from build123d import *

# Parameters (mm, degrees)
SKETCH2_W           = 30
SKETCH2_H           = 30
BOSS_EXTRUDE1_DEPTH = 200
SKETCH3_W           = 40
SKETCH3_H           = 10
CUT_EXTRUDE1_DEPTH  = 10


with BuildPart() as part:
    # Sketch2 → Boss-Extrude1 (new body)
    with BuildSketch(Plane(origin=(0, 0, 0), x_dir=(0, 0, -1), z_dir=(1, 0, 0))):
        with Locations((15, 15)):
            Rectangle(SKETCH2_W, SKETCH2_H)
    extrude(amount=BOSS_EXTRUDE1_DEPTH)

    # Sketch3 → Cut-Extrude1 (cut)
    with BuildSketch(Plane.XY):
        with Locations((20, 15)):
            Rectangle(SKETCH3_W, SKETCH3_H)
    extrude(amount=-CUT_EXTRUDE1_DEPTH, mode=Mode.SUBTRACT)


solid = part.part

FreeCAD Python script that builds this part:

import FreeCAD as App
import Part
import Sketcher
from FreeCAD import Vector

doc = App.newDocument("Part")
body = doc.addObject("PartDesign::Body", "Body")

sketch1 = body.newObject("Sketcher::SketchObject", "Sketch")
sketch1.AttachmentSupport = (doc.getObject("YZ_Plane"), [""])
sketch1.MapMode = "FlatFace"
sketch1.addGeometry([
    Part.LineSegment(Vector(30, 0, 0), Vector(0, 0, 0)),
    Part.LineSegment(Vector(0, 0, 0), Vector(0, -30, 0)),
    Part.LineSegment(Vector(0, -30, 0), Vector(30, -30, 0)),
    Part.LineSegment(Vector(30, -30, 0), Vector(30, 0, 0)),
], False)
sketch1.addConstraint([
    Sketcher.Constraint("Coincident", 0, 2, 1, 1),
    Sketcher.Constraint("Coincident", 1, 2, 2, 1),
    Sketcher.Constraint("Coincident", 2, 2, 3, 1),
    Sketcher.Constraint("Coincident", 3, 2, 0, 1),
    Sketcher.Constraint("Horizontal", 0),
    Sketcher.Constraint("Vertical", 1),
    Sketcher.Constraint("Horizontal", 2),
    Sketcher.Constraint("Vertical", 3),
    Sketcher.Constraint("Coincident", 0, 2, -1, 1),
    Sketcher.Constraint("Equal", 2, 1),
    Sketcher.Constraint("DistanceX", 0, 2, 0, 1, 30.0),
])
pad1 = body.newObject("PartDesign::Pad", "Pad")
pad1.Profile = sketch1
pad1.Length = 200

sketch2 = body.newObject("Sketcher::SketchObject", "Sketch001")
sketch2.AttachmentSupport = (doc.getObject("XY_Plane"), [""])
sketch2.MapMode = "FlatFace"
sketch2.addGeometry([
    Part.LineSegment(Vector(0, 20, 0), Vector(0, 10, 0)),
    Part.LineSegment(Vector(0, 10, 0), Vector(40, 10, 0)),
    Part.LineSegment(Vector(40, 10, 0), Vector(40, 20, 0)),
    Part.LineSegment(Vector(40, 20, 0), Vector(0, 20, 0)),
], False)
sketch2.addConstraint([
    Sketcher.Constraint("Coincident", 0, 2, 1, 1),
    Sketcher.Constraint("Coincident", 1, 2, 2, 1),
    Sketcher.Constraint("Coincident", 2, 2, 3, 1),
    Sketcher.Constraint("Coincident", 3, 2, 0, 1),
    Sketcher.Constraint("Vertical", 0),
    Sketcher.Constraint("Horizontal", 1),
    Sketcher.Constraint("Vertical", 2),
    Sketcher.Constraint("Horizontal", 3),
    Sketcher.Constraint("PointOnObject", 0, 2, -2),
    Sketcher.Constraint("DistanceX", 1, 1, 1, 2, 40.0),
    Sketcher.Constraint("DistanceY", 0, 2, 0, 1, 10.0),
    Sketcher.Constraint("DistanceY", -1, 1, 0, 2, 10.0),
])
pocket1 = body.newObject("PartDesign::Pocket", "Pocket")
pocket1.Profile = sketch2
pocket1.Length = 10

doc.recompute()
